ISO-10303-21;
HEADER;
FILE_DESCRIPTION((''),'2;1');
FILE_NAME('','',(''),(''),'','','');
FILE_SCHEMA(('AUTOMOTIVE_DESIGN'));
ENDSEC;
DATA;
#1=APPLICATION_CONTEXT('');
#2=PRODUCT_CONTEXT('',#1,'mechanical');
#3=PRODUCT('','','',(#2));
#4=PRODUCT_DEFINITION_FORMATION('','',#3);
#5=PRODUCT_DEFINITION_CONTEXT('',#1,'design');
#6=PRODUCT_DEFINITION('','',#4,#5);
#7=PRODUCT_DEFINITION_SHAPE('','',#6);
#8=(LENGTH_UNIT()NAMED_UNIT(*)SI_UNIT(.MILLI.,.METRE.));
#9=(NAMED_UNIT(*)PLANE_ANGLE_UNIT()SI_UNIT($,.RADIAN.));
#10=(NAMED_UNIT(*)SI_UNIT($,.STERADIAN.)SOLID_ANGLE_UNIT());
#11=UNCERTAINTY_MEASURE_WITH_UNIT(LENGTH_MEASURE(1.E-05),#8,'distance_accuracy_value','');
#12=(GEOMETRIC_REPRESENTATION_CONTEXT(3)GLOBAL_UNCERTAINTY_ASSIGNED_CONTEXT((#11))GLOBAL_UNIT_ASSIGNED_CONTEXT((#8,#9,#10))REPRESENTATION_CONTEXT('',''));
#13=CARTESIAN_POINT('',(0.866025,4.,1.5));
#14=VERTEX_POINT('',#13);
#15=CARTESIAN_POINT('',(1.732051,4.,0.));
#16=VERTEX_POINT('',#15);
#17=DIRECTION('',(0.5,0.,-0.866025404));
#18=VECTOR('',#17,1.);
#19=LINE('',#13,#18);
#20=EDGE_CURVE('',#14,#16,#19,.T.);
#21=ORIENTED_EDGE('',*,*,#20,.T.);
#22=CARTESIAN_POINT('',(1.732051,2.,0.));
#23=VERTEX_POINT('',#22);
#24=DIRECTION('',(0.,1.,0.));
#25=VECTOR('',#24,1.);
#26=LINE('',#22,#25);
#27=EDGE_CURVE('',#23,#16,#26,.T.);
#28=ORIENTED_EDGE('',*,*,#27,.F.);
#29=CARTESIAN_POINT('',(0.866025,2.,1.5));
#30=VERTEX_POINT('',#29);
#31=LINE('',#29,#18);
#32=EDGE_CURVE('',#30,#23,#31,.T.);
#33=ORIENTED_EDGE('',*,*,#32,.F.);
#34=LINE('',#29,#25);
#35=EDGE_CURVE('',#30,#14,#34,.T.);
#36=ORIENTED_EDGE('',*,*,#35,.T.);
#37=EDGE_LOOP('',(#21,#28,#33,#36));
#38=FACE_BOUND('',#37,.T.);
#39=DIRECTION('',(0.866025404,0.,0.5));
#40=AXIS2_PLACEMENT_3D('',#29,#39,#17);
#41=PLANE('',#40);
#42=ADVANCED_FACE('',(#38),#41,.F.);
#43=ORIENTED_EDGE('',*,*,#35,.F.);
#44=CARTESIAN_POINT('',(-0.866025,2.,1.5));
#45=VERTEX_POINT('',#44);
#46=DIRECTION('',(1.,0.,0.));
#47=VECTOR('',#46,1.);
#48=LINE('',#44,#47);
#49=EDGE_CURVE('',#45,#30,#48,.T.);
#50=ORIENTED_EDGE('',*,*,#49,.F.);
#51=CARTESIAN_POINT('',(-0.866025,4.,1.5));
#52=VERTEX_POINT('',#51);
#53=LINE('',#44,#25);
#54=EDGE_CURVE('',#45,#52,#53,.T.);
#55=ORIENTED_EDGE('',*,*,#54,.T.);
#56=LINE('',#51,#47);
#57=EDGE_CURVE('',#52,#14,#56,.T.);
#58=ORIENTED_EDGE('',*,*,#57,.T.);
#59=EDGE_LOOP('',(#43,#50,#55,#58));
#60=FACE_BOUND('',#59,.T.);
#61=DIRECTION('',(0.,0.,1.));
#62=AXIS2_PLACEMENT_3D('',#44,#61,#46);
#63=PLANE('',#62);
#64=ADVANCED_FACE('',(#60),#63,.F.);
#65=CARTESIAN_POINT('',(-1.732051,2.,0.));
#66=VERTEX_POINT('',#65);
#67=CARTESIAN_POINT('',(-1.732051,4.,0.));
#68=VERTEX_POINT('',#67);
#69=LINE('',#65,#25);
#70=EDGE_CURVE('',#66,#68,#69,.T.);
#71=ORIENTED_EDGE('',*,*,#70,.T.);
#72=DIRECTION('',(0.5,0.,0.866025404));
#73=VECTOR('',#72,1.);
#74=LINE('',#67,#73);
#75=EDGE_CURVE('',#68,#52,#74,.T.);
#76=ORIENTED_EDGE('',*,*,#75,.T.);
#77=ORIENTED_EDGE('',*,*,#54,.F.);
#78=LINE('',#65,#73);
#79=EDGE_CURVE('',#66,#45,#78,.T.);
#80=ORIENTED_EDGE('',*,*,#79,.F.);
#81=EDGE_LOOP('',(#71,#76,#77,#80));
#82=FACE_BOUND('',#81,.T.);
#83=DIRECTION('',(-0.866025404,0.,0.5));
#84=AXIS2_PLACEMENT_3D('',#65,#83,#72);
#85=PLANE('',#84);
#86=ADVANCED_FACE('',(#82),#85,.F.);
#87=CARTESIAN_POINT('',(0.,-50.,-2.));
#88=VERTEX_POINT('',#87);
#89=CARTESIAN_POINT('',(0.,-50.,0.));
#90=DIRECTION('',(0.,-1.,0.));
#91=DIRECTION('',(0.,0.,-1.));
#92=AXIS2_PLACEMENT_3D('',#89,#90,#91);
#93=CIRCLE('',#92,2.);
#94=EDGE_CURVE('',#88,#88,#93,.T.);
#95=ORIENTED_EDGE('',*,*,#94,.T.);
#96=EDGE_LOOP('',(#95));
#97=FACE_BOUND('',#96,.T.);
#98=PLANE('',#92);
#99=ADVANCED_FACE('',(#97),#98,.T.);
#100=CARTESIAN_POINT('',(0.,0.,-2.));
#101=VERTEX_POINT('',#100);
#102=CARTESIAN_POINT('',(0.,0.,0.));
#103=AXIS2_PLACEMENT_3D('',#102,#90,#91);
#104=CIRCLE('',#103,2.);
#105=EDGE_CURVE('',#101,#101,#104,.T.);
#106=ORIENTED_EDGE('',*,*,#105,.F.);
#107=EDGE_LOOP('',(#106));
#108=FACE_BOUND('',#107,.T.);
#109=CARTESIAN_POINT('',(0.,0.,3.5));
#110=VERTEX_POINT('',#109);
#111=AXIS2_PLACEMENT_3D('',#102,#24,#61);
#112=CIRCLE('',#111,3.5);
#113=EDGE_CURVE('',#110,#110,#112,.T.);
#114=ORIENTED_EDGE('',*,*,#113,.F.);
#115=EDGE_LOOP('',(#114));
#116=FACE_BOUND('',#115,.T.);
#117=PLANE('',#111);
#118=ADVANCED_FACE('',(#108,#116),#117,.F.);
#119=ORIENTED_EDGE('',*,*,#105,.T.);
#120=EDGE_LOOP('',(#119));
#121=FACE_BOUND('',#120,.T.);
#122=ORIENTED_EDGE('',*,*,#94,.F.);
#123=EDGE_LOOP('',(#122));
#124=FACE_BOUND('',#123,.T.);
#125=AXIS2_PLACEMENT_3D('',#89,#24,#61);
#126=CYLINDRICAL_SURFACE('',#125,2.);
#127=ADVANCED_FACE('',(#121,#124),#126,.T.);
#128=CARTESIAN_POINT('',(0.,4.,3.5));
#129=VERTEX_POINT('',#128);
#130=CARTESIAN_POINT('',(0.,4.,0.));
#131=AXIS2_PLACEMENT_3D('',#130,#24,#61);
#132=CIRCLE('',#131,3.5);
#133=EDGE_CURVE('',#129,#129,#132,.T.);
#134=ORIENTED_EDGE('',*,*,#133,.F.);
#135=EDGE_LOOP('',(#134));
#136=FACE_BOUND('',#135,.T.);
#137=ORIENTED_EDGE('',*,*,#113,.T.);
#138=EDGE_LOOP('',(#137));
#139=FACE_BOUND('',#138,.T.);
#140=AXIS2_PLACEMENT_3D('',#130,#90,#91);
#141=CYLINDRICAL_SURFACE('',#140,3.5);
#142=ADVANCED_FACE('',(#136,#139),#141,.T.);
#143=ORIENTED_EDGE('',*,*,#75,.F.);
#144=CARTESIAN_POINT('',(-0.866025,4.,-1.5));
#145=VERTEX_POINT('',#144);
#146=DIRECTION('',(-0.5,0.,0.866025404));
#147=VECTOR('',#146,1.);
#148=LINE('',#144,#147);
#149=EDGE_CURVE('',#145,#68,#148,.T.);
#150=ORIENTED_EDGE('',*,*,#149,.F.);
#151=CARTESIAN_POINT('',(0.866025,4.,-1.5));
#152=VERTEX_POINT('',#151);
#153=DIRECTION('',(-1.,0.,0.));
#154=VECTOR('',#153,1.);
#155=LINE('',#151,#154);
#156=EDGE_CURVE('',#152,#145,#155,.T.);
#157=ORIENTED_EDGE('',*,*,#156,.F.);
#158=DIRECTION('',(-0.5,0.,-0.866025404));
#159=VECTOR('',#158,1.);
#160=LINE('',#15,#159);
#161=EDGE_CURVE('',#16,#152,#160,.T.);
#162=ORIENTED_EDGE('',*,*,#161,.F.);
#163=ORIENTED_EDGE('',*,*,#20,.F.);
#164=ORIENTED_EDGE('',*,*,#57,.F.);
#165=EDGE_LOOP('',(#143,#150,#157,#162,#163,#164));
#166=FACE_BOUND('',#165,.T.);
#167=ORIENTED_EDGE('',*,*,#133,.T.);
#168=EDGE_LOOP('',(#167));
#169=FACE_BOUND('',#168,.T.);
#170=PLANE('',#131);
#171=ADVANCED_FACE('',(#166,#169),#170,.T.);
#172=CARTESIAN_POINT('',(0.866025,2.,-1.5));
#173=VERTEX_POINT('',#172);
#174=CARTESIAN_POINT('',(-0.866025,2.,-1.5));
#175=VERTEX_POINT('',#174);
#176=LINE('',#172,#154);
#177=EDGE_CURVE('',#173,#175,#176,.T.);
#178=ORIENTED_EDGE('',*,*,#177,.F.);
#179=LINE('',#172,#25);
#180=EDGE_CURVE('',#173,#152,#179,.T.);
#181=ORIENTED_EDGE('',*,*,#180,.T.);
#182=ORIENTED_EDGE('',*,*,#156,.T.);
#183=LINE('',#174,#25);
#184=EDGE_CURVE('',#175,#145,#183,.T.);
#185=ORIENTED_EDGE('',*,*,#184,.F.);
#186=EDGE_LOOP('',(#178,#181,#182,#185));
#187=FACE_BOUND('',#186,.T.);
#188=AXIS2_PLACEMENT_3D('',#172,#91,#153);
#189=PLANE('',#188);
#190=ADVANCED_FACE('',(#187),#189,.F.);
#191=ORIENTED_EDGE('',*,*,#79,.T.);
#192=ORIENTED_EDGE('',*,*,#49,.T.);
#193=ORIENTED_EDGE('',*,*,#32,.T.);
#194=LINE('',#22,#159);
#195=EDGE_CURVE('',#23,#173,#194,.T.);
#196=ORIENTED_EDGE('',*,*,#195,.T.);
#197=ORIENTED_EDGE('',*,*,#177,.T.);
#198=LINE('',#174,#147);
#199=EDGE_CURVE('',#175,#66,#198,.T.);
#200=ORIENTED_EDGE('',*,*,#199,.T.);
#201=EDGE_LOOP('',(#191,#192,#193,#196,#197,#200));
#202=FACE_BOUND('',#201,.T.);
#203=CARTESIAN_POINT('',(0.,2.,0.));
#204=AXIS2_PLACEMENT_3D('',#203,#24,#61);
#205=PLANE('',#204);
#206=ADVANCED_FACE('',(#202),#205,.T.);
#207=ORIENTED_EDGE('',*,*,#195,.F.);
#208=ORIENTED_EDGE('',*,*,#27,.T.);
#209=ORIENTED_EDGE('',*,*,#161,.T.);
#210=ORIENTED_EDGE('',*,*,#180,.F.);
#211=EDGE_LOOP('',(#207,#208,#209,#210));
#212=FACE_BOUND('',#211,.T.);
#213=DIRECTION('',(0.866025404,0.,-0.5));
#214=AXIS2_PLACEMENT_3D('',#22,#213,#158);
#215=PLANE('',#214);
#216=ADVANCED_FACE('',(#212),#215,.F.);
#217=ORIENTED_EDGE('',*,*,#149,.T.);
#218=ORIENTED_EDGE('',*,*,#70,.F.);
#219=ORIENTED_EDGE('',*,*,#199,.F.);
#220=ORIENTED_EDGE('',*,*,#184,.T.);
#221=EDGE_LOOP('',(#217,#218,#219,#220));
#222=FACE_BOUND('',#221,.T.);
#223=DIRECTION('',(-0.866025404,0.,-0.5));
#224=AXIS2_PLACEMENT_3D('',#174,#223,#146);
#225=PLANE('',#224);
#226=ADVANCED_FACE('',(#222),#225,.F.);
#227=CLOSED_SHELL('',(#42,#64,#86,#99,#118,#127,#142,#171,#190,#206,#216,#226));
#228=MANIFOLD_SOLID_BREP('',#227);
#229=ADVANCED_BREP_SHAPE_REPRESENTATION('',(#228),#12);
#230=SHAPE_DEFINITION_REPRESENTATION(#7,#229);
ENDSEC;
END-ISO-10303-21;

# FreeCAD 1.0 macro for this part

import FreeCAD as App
import Part
import Sketcher

V = App.Vector
Q = App.Units.Quantity

doc = App.newDocument("Part")
params = doc.addObject("Spreadsheet::Sheet", "Params")
for row, (alias, value) in enumerate([
    ("sketch1_diameter", "7 mm"),
    ("pad1_length", "4 mm"),
    ("pocket1_length", "2 mm"),
    ("sketch3_diameter", "4 mm"),
    ("pad2_length", "50 mm"),
], start=1):
    params.set(f"A{row}", alias)
    params.set(f"B{row}", "=" + value)
    params.setAlias(f"B{row}", alias)

body = doc.addObject("PartDesign::Body", "Body")

# Sketch on XZ plane
sketch1 = body.newObject("Sketcher::SketchObject", "Sketch")
sketch1.AttachmentSupport = (doc.getObject("XZ_Plane"), [""])
sketch1.MapMode = "FlatFace"
sketch1.addGeometry(Part.Circle(V(0, 0, 0), V(0, 0, 1), 3.5), False)
sketch1.addConstraint([
    Sketcher.Constraint("Coincident", 0, 3, -1, 1),
    Sketcher.Constraint("Diameter", 0, 7.0),
])
sketch1.setExpression("Constraints[1]", "Params.sketch1_diameter")
pad1 = body.newObject("PartDesign::Pad", "Pad")
pad1.Profile = sketch1
pad1.setExpression("Length", "Params.pad1_length")
pad1.Reversed = True

# Sketch on XZ plane
sketch2 = body.newObject("Sketcher::SketchObject", "Sketch001")
sketch2.AttachmentSupport = (doc.getObject("XZ_Plane"), [""])
sketch2.MapMode = "FlatFace"
sketch2.AttachmentOffset = App.Placement(V(0, 0, -4), App.Rotation())
sketch2.addGeometry([
    Part.LineSegment(V(1.7, 0, 0), V(0.9, -1.5, 0)),  # 0
    Part.LineSegment(V(0.9, -1.5, 0), V(-0.9, -1.5, 0)),  # 1
    Part.LineSegment(V(-0.9, -1.5, 0), V(-1.7, 0, 0)),  # 2
    Part.LineSegment(V(-1.7, 0, 0), V(-0.9, 1.5, 0)),  # 3
    Part.LineSegment(V(-0.9, 1.5, 0), V(0.9, 1.5, 0)),  # 4
    Part.LineSegment(V(0.9, 1.5, 0), V(1.7, 0, 0)),  # 5
], False)
sketch2.addConstraint([
    Sketcher.Constraint("Coincident", 0, 2, 1, 1),
    Sketcher.Constraint("Coincident", 1, 2, 2, 1),
    Sketcher.Constraint("Coincident", 2, 2, 3, 1),
    Sketcher.Constraint("Coincident", 3, 2, 4, 1),
    Sketcher.Constraint("Coincident", 4, 2, 5, 1),
    Sketcher.Constraint("Coincident", 5, 2, 0, 1),
    Sketcher.Constraint("Horizontal", 1),
    Sketcher.Constraint("Horizontal", 4),
    Sketcher.Constraint("Symmetric", 0, 2, 3, 2, -1, 1),
    Sketcher.Constraint("Symmetric", 2, 2, 5, 2, -1, 1),
    Sketcher.Constraint("PointOnObject", 2, 2, -1),
    Sketcher.Constraint("Parallel", 2, 5),
    Sketcher.Constraint("Vertical", 1, 2, 3, 2),
    Sketcher.Constraint("Angle", 0, Q("-120 deg")),
    Sketcher.Constraint("DistanceY", 1, 2, 3, 2, 3.0),
    Sketcher.Constraint("DistanceX", 1, 2, 1, 1, 1.732051),
])
pocket1 = body.newObject("PartDesign::Pocket", "Pocket")
pocket1.Profile = sketch2
pocket1.setExpression("Length", "Params.pocket1_length")
pocket1.Reversed = True

# Sketch on XZ plane
sketch3 = body.newObject("Sketcher::SketchObject", "Sketch002")
sketch3.AttachmentSupport = (doc.getObject("XZ_Plane"), [""])
sketch3.MapMode = "FlatFace"
sketch3.addGeometry(Part.Circle(V(0, 0, 0), V(0, 0, 1), 2), False)
sketch3.addConstraint([
    Sketcher.Constraint("Coincident", 0, 3, -1, 1),
    Sketcher.Constraint("Diameter", 0, 4.0),
])
sketch3.setExpression("Constraints[1]", "Params.sketch3_diameter")
pad2 = body.newObject("PartDesign::Pad", "Pad001")
pad2.Profile = sketch3
pad2.setExpression("Length", "Params.pad2_length")

doc.recompute()
